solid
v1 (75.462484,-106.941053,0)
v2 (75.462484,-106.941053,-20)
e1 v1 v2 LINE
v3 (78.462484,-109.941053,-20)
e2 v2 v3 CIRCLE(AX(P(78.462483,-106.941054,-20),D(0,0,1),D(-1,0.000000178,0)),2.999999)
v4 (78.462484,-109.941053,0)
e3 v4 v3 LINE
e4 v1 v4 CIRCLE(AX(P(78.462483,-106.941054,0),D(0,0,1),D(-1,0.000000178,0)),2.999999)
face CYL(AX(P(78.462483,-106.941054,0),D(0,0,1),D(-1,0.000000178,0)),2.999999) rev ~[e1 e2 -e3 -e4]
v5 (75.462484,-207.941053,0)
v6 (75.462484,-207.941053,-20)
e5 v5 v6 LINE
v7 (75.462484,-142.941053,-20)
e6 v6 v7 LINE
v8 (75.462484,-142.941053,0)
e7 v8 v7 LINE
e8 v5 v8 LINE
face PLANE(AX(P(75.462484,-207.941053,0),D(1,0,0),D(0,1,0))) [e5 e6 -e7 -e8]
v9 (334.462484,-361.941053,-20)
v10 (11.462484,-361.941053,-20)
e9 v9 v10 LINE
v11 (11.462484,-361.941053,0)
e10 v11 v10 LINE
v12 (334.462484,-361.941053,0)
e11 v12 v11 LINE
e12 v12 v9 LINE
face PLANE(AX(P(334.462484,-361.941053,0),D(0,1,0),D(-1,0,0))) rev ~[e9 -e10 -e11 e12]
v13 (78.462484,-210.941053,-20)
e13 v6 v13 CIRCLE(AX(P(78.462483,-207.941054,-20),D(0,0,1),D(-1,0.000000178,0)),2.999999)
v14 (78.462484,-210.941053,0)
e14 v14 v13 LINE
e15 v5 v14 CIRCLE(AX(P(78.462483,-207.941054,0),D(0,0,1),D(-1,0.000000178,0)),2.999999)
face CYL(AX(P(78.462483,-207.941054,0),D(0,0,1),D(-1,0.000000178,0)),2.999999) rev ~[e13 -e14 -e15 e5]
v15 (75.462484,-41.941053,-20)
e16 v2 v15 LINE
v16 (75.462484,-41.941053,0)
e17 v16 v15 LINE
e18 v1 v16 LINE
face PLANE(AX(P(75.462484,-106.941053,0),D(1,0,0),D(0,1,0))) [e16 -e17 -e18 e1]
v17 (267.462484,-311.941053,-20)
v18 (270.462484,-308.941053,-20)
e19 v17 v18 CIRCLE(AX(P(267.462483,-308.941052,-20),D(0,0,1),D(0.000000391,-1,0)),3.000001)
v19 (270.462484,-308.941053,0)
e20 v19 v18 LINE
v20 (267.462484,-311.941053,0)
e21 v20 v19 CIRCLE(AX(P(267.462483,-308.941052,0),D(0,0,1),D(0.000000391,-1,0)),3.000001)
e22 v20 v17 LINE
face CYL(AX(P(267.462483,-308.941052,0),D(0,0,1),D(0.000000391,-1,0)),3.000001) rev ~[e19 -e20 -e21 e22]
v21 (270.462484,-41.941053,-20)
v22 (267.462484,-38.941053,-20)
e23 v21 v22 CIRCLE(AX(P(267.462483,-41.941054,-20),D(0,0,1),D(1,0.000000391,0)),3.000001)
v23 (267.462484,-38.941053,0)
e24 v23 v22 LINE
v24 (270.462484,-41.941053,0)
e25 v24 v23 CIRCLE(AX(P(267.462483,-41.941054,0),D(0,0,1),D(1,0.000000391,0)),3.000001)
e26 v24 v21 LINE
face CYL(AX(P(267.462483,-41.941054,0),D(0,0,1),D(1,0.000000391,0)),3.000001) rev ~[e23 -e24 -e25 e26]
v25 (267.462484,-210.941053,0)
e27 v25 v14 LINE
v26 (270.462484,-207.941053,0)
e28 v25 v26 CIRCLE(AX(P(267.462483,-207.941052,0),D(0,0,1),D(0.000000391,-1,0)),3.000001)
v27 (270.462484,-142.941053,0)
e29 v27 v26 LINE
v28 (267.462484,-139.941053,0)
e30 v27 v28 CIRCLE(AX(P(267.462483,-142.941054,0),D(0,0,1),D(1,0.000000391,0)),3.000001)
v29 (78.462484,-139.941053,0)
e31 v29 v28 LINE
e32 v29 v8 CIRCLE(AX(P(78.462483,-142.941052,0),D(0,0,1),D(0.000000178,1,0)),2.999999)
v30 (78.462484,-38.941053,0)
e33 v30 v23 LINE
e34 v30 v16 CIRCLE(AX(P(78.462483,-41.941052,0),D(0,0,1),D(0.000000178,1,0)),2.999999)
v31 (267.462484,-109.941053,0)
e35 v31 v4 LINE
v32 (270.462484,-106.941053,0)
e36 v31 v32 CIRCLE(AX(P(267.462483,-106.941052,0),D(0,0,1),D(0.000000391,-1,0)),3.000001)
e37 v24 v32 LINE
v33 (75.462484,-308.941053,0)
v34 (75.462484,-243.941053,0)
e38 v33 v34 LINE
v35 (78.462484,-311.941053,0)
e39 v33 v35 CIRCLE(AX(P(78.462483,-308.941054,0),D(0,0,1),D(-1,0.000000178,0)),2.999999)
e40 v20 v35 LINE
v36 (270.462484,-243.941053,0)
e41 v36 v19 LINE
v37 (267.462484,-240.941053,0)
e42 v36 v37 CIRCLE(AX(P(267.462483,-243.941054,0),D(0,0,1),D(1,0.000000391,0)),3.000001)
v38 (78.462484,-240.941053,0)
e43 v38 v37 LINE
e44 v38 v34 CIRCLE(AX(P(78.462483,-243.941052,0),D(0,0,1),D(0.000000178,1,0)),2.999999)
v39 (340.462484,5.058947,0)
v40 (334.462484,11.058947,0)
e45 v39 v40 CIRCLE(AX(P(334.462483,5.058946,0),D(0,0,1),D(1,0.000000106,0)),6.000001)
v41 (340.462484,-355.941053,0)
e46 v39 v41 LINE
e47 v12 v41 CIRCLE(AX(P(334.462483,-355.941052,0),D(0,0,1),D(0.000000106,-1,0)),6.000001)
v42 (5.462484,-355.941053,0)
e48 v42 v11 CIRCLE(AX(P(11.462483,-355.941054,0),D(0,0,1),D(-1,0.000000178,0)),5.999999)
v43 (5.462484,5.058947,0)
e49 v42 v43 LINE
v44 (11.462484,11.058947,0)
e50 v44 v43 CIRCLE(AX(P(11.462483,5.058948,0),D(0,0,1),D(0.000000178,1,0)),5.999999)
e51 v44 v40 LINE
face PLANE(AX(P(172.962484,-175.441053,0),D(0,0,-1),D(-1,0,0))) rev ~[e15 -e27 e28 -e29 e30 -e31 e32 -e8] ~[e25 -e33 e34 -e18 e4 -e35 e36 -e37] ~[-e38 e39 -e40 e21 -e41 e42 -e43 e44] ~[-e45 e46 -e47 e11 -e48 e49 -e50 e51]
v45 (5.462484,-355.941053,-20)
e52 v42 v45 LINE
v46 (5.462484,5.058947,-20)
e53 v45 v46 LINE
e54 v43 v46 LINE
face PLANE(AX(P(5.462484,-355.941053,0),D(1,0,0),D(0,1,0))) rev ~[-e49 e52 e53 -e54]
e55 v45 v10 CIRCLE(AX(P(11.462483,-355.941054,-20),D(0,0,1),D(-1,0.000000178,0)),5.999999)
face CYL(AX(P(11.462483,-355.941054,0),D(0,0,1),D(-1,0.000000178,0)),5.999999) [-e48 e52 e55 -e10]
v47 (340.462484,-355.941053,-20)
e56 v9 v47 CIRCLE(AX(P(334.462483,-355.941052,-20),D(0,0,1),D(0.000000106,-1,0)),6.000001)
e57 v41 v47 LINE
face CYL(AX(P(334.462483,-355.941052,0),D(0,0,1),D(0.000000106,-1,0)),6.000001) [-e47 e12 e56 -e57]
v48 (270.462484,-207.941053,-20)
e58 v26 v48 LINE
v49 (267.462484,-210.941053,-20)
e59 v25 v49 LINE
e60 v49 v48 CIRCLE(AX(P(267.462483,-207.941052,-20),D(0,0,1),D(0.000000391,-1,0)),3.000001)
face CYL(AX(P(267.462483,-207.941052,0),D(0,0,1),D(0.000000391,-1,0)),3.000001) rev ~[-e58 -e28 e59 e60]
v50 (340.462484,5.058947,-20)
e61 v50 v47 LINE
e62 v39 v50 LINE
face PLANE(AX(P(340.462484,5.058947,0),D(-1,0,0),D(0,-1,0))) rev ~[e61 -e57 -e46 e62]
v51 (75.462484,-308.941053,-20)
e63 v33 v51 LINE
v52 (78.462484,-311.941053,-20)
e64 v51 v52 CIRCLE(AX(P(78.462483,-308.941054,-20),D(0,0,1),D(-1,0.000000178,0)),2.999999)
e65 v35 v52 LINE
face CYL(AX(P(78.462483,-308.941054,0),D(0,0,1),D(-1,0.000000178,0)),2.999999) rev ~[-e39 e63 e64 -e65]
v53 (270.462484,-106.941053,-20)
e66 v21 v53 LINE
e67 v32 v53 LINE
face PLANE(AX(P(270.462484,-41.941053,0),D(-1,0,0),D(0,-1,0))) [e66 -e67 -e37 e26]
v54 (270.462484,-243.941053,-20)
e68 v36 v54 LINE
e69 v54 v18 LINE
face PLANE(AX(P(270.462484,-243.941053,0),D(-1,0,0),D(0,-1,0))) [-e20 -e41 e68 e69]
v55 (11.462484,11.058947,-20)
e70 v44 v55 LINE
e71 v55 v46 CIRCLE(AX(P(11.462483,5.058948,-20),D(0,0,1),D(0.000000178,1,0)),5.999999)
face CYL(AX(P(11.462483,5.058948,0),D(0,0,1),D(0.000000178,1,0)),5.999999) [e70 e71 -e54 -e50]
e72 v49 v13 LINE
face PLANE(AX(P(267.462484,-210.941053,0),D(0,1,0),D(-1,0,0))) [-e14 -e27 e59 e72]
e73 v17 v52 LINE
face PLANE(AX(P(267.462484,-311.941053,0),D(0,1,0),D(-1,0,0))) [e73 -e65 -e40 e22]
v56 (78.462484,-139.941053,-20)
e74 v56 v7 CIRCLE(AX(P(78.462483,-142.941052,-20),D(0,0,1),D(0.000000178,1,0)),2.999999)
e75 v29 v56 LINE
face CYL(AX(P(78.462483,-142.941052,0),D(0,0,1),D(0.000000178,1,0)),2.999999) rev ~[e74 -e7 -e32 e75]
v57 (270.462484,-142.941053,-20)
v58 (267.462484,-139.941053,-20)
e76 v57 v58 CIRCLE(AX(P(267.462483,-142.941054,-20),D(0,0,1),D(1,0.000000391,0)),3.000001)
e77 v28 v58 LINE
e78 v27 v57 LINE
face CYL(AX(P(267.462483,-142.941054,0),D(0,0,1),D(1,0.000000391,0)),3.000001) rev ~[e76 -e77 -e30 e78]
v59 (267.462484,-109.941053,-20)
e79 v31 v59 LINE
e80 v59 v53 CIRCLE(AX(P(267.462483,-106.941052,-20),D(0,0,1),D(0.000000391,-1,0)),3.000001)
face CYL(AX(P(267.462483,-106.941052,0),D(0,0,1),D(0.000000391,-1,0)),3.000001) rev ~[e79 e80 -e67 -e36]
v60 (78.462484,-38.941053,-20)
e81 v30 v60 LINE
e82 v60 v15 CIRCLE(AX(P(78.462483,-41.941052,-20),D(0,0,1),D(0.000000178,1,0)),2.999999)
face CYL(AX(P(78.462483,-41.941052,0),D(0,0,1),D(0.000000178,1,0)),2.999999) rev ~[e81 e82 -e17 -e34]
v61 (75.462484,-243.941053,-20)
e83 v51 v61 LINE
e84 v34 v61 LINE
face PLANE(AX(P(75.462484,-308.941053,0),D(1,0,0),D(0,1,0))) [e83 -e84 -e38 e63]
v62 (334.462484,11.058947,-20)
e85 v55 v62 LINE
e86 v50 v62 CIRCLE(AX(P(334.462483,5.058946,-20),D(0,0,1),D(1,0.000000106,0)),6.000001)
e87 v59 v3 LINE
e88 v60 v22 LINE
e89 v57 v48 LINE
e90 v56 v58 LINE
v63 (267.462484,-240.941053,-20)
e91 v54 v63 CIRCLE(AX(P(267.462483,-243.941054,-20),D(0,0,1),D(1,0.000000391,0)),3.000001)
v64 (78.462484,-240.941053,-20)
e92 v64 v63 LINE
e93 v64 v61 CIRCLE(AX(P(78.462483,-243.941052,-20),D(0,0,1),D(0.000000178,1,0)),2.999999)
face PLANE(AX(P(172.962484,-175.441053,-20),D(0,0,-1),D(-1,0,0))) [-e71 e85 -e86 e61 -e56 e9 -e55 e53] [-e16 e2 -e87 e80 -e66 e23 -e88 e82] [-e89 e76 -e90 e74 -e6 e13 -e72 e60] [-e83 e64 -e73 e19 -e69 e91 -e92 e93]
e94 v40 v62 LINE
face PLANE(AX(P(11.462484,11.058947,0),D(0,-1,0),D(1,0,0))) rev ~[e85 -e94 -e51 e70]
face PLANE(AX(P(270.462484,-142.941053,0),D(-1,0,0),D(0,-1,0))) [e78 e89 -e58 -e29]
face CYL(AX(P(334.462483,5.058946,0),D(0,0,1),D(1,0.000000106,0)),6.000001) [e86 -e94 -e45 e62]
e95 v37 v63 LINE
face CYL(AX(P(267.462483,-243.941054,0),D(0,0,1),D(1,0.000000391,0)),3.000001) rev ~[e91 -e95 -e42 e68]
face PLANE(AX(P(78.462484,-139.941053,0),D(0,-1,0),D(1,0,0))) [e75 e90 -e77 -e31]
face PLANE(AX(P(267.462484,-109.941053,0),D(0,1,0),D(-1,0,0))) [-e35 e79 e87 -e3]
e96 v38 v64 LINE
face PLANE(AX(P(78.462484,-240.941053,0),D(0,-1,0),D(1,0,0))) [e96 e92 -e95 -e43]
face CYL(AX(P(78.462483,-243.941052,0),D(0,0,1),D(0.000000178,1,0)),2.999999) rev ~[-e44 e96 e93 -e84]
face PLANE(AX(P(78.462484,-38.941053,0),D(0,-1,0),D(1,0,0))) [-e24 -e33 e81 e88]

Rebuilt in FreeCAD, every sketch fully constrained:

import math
import FreeCAD as App
import Part
import Sketcher

doc = App.newDocument("Part")
body = doc.addObject("PartDesign::Body", "Body")

# Sketch on XY plane
sketch1 = body.newObject("Sketcher::SketchObject", "Sketch")
sketch1.AttachmentSupport = (doc.getObject("XY_Plane"), [""])
sketch1.MapMode = "FlatFace"
sketch1.addGeometry([
    Part.LineSegment(App.Vector(334.462484, 11.058947, 0), App.Vector(11.462484, 11.058947, 0)),  # 0
    Part.ArcOfCircle(Part.Circle(App.Vector(11.462483, 5.058948, 0), App.Vector(0, 0, 1), 5.999999), math.radians(89.99999), math.radians(180.00001)),  # 1
    Part.LineSegment(App.Vector(5.462484, 5.058947, 0), App.Vector(5.462484, -355.941053, 0)),  # 2
    Part.ArcOfCircle(Part.Circle(App.Vector(11.462483, -355.941054, 0), App.Vector(0, 0, 1), 5.999999), math.radians(179.99999), math.radians(270.00001)),  # 3
    Part.LineSegment(App.Vector(11.462484, -361.941053, 0), App.Vector(334.462484, -361.941053, 0)),  # 4
    Part.ArcOfCircle(Part.Circle(App.Vector(334.462483, -355.941052, 0), App.Vector(0, 0, 1), 6.000001), math.radians(-89.999994), math.radians(-0.000006)),  # 5
    Part.LineSegment(App.Vector(340.462484, -355.941053, 0), App.Vector(340.462484, 5.058947, 0)),  # 6
    Part.ArcOfCircle(Part.Circle(App.Vector(334.462483, 5.058946, 0), App.Vector(0, 0, 1), 6.000001), math.radians(0.000006), math.radians(89.999994)),  # 7
    Part.LineSegment(App.Vector(78.462484, -240.941053, 0), App.Vector(267.462484, -240.941053, 0)),  # 8
    Part.ArcOfCircle(Part.Circle(App.Vector(267.462483, -243.941054, 0), App.Vector(0, 0, 1), 3.000001), math.radians(0.000022), math.radians(89.999978)),  # 9
    Part.LineSegment(App.Vector(270.462484, -243.941053, 0), App.Vector(270.462484, -308.941053, 0)),  # 10
    Part.ArcOfCircle(Part.Circle(App.Vector(267.462483, -308.941052, 0), App.Vector(0, 0, 1), 3.000001), math.radians(-89.999978), math.radians(-0.000022)),  # 11
    Part.LineSegment(App.Vector(267.462484, -311.941053, 0), App.Vector(78.462484, -311.941053, 0)),  # 12
    Part.ArcOfCircle(Part.Circle(App.Vector(78.462483, -308.941054, 0), App.Vector(0, 0, 1), 2.999999), math.radians(179.99999), math.radians(270.00001)),  # 13
    Part.LineSegment(App.Vector(75.462484, -308.941053, 0), App.Vector(75.462484, -243.941053, 0)),  # 14
    Part.ArcOfCircle(Part.Circle(App.Vector(78.462483, -243.941052, 0), App.Vector(0, 0, 1), 2.999999), math.radians(89.99999), math.radians(180.00001)),  # 15
    Part.LineSegment(App.Vector(78.462484, -139.941053, 0), App.Vector(267.462484, -139.941053, 0)),  # 16
    Part.ArcOfCircle(Part.Circle(App.Vector(267.462483, -142.941054, 0), App.Vector(0, 0, 1), 3.000001), math.radians(0.000022), math.radians(89.999978)),  # 17
    Part.LineSegment(App.Vector(270.462484, -142.941053, 0), App.Vector(270.462484, -207.941053, 0)),  # 18
    Part.ArcOfCircle(Part.Circle(App.Vector(267.462483, -207.941052, 0), App.Vector(0, 0, 1), 3.000001), math.radians(-89.999978), math.radians(-0.000022)),  # 19
    Part.LineSegment(App.Vector(267.462484, -210.941053, 0), App.Vector(78.462484, -210.941053, 0)),  # 20
    Part.ArcOfCircle(Part.Circle(App.Vector(78.462483, -207.941054, 0), App.Vector(0, 0, 1), 2.999999), math.radians(179.99999), math.radians(270.00001)),  # 21
    Part.LineSegment(App.Vector(75.462484, -207.941053, 0), App.Vector(75.462484, -142.941053, 0)),  # 22
    Part.ArcOfCircle(Part.Circle(App.Vector(78.462483, -142.941052, 0), App.Vector(0, 0, 1), 2.999999), math.radians(89.99999), math.radians(180.00001)),  # 23
    Part.LineSegment(App.Vector(78.462484, -38.941053, 0), App.Vector(267.462484, -38.941053, 0)),  # 24
    Part.ArcOfCircle(Part.Circle(App.Vector(267.462483, -41.941054, 0), App.Vector(0, 0, 1), 3.000001), math.radians(0.000022), math.radians(89.999978)),  # 25
    Part.LineSegment(App.Vector(270.462484, -41.941053, 0), App.Vector(270.462484, -106.941053, 0)),  # 26
    Part.ArcOfCircle(Part.Circle(App.Vector(267.462483, -106.941052, 0), App.Vector(0, 0, 1), 3.000001), math.radians(-89.999978), math.radians(-0.000022)),  # 27
    Part.LineSegment(App.Vector(267.462484, -109.941053, 0), App.Vector(78.462484, -109.941053, 0)),  # 28
    Part.ArcOfCircle(Part.Circle(App.Vector(78.462483, -106.941054, 0), App.Vector(0, 0, 1), 2.999999), math.radians(179.99999), math.radians(270.00001)),  # 29
    Part.LineSegment(App.Vector(75.462484, -106.941053, 0), App.Vector(75.462484, -41.941053, 0)),  # 30
    Part.ArcOfCircle(Part.Circle(App.Vector(78.462483, -41.941052, 0), App.Vector(0, 0, 1), 2.999999), math.radians(89.99999), math.radians(180.00001)),  # 31
], False)
sketch1.addConstraint([
    Sketcher.Constraint("Tangent", 0, 2, 1, 1),
    Sketcher.Constraint("Tangent", 1, 2, 2, 1),
    Sketcher.Constraint("Tangent", 2, 2, 3, 1),
    Sketcher.Constraint("Tangent", 3, 2, 4, 1),
    Sketcher.Constraint("Tangent", 4, 2, 5, 1),
    Sketcher.Constraint("Tangent", 5, 2, 6, 1),
    Sketcher.Constraint("Tangent", 6, 2, 7, 1),
    Sketcher.Constraint("Tangent", 7, 2, 0, 1),
    Sketcher.Constraint("Tangent", 8, 2, 9, 2),
    Sketcher.Constraint("Tangent", 9, 1, 10, 1),
    Sketcher.Constraint("Tangent", 10, 2, 11, 2),
    Sketcher.Constraint("Tangent", 11, 1, 12, 1),
    Sketcher.Constraint("Tangent", 12, 2, 13, 2),
    Sketcher.Constraint("Tangent", 13, 1, 14, 1),
    Sketcher.Constraint("Tangent", 14, 2, 15, 2),
    Sketcher.Constraint("Tangent", 15, 1, 8, 1),
    Sketcher.Constraint("Tangent", 16, 2, 17, 2),
    Sketcher.Constraint("Tangent", 17, 1, 18, 1),
    Sketcher.Constraint("Tangent", 18, 2, 19, 2),
    Sketcher.Constraint("Tangent", 19, 1, 20, 1),
    Sketcher.Constraint("Tangent", 20, 2, 21, 2),
    Sketcher.Constraint("Tangent", 21, 1, 22, 1),
    Sketcher.Constraint("Tangent", 22, 2, 23, 2),
    Sketcher.Constraint("Tangent", 23, 1, 16, 1),
    Sketcher.Constraint("Tangent", 24, 2, 25, 2),
    Sketcher.Constraint("Tangent", 25, 1, 26, 1),
    Sketcher.Constraint("Tangent", 26, 2, 27, 2),
    Sketcher.Constraint("Tangent", 27, 1, 28, 1),
    Sketcher.Constraint("Tangent", 28, 2, 29, 2),
    Sketcher.Constraint("Tangent", 29, 1, 30, 1),
    Sketcher.Constraint("Tangent", 30, 2, 31, 2),
    Sketcher.Constraint("Tangent", 31, 1, 24, 1),
    Sketcher.Constraint("Horizontal", 0),
    Sketcher.Constraint("Vertical", 2),
    Sketcher.Constraint("Horizontal", 4),
    Sketcher.Constraint("Vertical", 6),
    Sketcher.Constraint("Horizontal", 8),
    Sketcher.Constraint("Vertical", 10),
    Sketcher.Constraint("Horizontal", 12),
    Sketcher.Constraint("Vertical", 14),
    Sketcher.Constraint("Horizontal", 16),
    Sketcher.Constraint("Vertical", 18),
    Sketcher.Constraint("Horizontal", 20),
    Sketcher.Constraint("Vertical", 22),
    Sketcher.Constraint("Horizontal", 24),
    Sketcher.Constraint("Vertical", 26),
    Sketcher.Constraint("Horizontal", 28),
    Sketcher.Constraint("Vertical", 30),
    Sketcher.Constraint("Equal", 1, 3),
    Sketcher.Constraint("Equal", 3, 5),
    Sketcher.Constraint("Equal", 5, 7),
    Sketcher.Constraint("Equal", 9, 11),
    Sketcher.Constraint("Equal", 11, 13),
    Sketcher.Constraint("Equal", 13, 15),
    Sketcher.Constraint("Equal", 15, 17),
    Sketcher.Constraint("Equal", 17, 19),
    Sketcher.Constraint("Equal", 19, 21),
    Sketcher.Constraint("Equal", 21, 23),
    Sketcher.Constraint("Equal", 23, 25),
    Sketcher.Constraint("Equal", 25, 27),
    Sketcher.Constraint("Equal", 27, 29),
    Sketcher.Constraint("Equal", 29, 31),
    Sketcher.Constraint("Vertical", 11, 3, 17, 3),
    Sketcher.Constraint("Vertical", 15, 3, 21, 3),
    Sketcher.Constraint("Vertical", 19, 3, 25, 3),
    Sketcher.Constraint("Vertical", 23, 3, 29, 3),
    Sketcher.Constraint("Equal", 14, 18),
    Sketcher.Constraint("Equal", 22, 26),
    Sketcher.Constraint("Radius", 1, 5.999999),
    Sketcher.Constraint("Radius", 9, 3.000001),
    Sketcher.Constraint("DistanceX", 0, 2, 0, 1, 323.0),
    Sketcher.Constraint("DistanceX", 8, 1, 8, 2, 189.0),
    Sketcher.Constraint("DistanceY", 2, 2, 2, 1, 361.0),
    Sketcher.Constraint("DistanceY", 10, 2, 10, 1, 65.0),
    Sketcher.Constraint("DistanceX", 9, 3, 5, 3, 67.000001),
    Sketcher.Constraint("DistanceY", 5, 3, 9, 3, 111.999998),
    Sketcher.Constraint("DistanceY", 9, 3, 17, 3, 101.0),
    Sketcher.Constraint("DistanceY", 25, 3, 7, 3, 47.000001),
    Sketcher.Constraint("DistanceY", -1, 1, 1, 3, 5.058948),
    Sketcher.Constraint("DistanceX", -1, 1, 1, 3, 11.462483),
])
pad1 = body.newObject("PartDesign::Pad", "Pad")
pad1.Profile = sketch1
pad1.Length = 20
pad1.Reversed = True

doc.recompute()
